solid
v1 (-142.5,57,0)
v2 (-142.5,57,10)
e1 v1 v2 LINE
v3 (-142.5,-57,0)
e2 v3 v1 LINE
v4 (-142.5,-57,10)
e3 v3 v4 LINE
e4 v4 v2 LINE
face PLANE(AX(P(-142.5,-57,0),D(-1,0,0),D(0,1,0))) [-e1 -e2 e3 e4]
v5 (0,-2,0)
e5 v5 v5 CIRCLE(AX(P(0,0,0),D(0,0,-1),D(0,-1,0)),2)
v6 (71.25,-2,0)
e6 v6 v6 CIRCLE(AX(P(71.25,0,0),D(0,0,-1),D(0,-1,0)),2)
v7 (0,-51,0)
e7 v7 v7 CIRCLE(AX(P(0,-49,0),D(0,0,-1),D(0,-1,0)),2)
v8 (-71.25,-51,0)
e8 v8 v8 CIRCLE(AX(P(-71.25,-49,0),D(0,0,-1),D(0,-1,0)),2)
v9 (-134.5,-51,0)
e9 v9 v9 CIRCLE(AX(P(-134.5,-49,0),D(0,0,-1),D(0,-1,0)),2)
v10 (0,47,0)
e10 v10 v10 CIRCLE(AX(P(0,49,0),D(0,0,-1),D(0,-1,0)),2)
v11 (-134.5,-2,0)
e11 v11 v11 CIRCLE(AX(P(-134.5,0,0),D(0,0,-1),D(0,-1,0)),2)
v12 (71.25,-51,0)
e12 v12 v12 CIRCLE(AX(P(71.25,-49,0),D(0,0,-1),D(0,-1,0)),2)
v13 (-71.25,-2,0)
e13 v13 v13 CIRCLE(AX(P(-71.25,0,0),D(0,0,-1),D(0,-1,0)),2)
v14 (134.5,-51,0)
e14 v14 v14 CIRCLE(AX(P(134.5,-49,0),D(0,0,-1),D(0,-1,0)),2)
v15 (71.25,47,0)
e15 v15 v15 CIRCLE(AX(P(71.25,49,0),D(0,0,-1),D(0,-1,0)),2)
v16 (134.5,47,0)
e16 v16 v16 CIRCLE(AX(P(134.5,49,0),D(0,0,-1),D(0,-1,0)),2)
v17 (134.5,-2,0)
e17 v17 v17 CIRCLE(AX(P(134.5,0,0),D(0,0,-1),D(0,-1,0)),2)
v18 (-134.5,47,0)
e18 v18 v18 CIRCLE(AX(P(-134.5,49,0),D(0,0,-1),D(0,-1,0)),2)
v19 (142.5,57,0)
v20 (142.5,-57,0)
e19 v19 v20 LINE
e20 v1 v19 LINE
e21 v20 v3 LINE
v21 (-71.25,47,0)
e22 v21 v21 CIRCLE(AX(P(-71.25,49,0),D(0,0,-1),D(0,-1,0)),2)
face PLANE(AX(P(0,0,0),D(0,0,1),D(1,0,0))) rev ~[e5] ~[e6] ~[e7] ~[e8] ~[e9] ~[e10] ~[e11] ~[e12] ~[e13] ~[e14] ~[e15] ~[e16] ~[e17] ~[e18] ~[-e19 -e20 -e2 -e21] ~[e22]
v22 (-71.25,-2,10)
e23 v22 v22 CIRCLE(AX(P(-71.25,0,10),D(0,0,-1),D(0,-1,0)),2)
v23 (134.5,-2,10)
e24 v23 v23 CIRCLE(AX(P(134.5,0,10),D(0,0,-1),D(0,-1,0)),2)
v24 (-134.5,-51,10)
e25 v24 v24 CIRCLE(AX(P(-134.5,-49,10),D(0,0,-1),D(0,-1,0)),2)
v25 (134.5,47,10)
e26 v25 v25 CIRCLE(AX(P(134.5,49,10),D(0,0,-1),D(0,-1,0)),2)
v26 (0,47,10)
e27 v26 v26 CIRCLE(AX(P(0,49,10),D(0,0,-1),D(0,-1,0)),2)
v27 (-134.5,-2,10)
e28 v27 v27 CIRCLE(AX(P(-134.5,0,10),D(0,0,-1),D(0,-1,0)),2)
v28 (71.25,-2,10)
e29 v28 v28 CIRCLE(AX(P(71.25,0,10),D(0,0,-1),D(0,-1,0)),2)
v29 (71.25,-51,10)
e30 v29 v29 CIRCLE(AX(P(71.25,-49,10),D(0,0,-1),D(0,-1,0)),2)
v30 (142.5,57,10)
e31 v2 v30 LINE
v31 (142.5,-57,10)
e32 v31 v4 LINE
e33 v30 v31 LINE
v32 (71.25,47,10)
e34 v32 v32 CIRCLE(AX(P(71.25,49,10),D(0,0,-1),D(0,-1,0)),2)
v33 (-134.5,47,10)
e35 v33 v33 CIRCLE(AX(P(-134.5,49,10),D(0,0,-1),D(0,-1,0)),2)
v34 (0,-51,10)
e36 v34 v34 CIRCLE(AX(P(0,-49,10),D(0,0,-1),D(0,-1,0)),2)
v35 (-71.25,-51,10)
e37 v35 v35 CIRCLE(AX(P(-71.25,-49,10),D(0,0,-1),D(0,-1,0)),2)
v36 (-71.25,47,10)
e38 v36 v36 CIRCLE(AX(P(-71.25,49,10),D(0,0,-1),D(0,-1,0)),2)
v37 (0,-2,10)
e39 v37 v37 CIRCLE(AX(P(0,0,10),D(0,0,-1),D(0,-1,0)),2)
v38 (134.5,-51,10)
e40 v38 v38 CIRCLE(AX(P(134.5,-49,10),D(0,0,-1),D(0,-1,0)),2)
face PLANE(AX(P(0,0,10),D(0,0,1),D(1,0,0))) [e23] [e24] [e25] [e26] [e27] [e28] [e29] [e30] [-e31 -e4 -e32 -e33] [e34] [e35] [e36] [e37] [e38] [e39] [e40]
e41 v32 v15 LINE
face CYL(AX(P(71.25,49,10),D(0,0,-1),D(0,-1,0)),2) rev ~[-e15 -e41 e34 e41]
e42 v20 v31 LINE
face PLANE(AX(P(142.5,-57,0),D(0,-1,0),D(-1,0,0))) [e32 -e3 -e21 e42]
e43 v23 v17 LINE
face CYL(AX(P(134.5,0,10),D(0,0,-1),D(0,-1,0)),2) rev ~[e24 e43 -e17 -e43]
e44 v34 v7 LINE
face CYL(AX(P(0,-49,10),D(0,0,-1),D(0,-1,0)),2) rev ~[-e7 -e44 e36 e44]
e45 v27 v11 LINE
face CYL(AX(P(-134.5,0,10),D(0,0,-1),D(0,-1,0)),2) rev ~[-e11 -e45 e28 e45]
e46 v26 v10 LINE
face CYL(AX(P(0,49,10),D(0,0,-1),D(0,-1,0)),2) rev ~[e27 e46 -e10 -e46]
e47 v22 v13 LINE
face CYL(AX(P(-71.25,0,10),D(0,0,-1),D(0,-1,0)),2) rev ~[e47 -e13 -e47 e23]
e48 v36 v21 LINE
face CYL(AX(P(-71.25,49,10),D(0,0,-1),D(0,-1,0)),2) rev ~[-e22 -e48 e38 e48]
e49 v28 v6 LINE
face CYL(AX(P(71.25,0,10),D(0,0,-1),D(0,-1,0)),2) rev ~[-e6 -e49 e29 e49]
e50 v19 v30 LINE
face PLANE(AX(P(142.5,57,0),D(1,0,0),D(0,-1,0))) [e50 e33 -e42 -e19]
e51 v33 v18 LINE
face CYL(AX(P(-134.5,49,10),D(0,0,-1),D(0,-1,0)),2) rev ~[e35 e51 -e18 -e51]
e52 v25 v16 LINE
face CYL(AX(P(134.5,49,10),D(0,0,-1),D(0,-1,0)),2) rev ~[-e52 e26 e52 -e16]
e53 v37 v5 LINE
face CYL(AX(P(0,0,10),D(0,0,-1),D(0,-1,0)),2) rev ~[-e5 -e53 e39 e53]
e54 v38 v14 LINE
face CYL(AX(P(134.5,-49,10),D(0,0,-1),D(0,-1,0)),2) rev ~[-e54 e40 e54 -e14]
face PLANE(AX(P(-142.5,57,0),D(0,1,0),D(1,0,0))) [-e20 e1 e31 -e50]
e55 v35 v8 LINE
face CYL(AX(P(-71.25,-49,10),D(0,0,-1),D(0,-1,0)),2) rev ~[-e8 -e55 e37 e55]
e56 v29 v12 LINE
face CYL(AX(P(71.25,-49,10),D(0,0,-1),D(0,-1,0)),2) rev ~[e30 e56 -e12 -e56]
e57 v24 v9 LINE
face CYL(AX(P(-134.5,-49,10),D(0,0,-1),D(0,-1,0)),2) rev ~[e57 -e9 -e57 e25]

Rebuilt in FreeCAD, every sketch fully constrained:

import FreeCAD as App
import Part
import Sketcher
from FreeCAD import Vector


def add_polygon(sketch, points):
    """Adds a closed chain of lines whose ends are joined by coincident constraints."""
    first, n = sketch.GeometryCount, len(points)
    for a, b in zip(points, points[1:] + points[:1]):
        sketch.addGeometry(Part.LineSegment(App.Vector(*a, 0), App.Vector(*b, 0)), False)
    for i in range(n):
        sketch.addConstraint(Sketcher.Constraint("Coincident", first + i, 2, first + (i + 1) % n, 1))

doc = App.newDocument("Part")
params = doc.addObject("Spreadsheet::Sheet", "Params")
for row, (alias, value) in enumerate([
    ("sketch1_width", "285 mm"),
    ("sketch1_height", "114 mm"),
    ("pad1_length", "10 mm"),
    ("sketch2_diameter", "4 mm"),
    ("hole_diameter", "4 mm"),
], start=1):
    params.set(f"A{row}", alias)
    params.set(f"B{row}", "=" + value)
    params.setAlias(f"B{row}", alias)

body = doc.addObject("PartDesign::Body", "Body")

sketch1 = body.newObject("Sketcher::SketchObject", "Sketch")
sketch1.AttachmentSupport = (doc.getObject("XY_Plane"), [""])
sketch1.MapMode = "FlatFace"
add_polygon(sketch1, [(142, 57), (-142, 57), (-142, -57), (142, -57)])
sketch1.addConstraint([
    Sketcher.Constraint("Horizontal", 0),
    Sketcher.Constraint("Vertical", 1),
    Sketcher.Constraint("Horizontal", 2),
    Sketcher.Constraint("Vertical", 3),
    Sketcher.Constraint("Symmetric", 0, 2, 2, 2, -1, 1),
    Sketcher.Constraint("DistanceX", 0, 2, 0, 1, 285.0),
    Sketcher.Constraint("DistanceY", 1, 2, 1, 1, 114.0),
])
sketch1.setExpression("Constraints[9]", "Params.sketch1_width")
sketch1.setExpression("Constraints[10]", "Params.sketch1_height")
pad1 = body.newObject("PartDesign::Pad", "Pad")
pad1.Profile = sketch1
pad1.setExpression("Length", "Params.pad1_length")

sketch2 = body.newObject("Sketcher::SketchObject", "Sketch001")
sketch2.AttachmentSupport = (doc.getObject("XY_Plane"), [""])
sketch2.MapMode = "FlatFace"
sketch2.AttachmentOffset = App.Placement(Vector(0, 0, 10), App.Rotation())
sketch2.addGeometry([
    Part.Circle(Vector(-134.5, 49, 0), Vector(0, 0, 1), 2),
    Part.Circle(Vector(-134.5, -49, 0), Vector(0, 0, 1), 2),
    Part.Circle(Vector(134.5, -49, 0), Vector(0, 0, 1), 2),
    Part.Circle(Vector(134.5, 49, 0), Vector(0, 0, 1), 2),
    Part.Circle(Vector(71.2, 49, 0), Vector(0, 0, 1), 2),
    Part.Circle(Vector(-71.2, 49, 0), Vector(0, 0, 1), 2),
    Part.Circle(Vector(-71.2, -49, 0), Vector(0, 0, 1), 2),
    Part.Circle(Vector(71.2, -49, 0), Vector(0, 0, 1), 2),
    Part.Circle(Vector(-71.2, 0, 0), Vector(0, 0, 1), 2),
    Part.Circle(Vector(0, 0, 0), Vector(0, 0, 1), 2),
    Part.Circle(Vector(71.2, 0, 0), Vector(0, 0, 1), 2),
    Part.Circle(Vector(0, 49, 0), Vector(0, 0, 1), 2),
    Part.Circle(Vector(0, -49, 0), Vector(0, 0, 1), 2),
    Part.Circle(Vector(-134.5, 0, 0), Vector(0, 0, 1), 2),
    Part.Circle(Vector(134.5, 0, 0), Vector(0, 0, 1), 2),
], False)
sketch2.addConstraint([
    Sketcher.Constraint("Coincident", 9, 3, -1, 1),
    Sketcher.Constraint("Equal", 0, 1),
    Sketcher.Constraint("Equal", 1, 2),
    Sketcher.Constraint("Equal", 2, 3),
    Sketcher.Constraint("Equal", 3, 4),
    Sketcher.Constraint("Equal", 4, 5),
    Sketcher.Constraint("Equal", 5, 6),
    Sketcher.Constraint("Equal", 6, 7),
    Sketcher.Constraint("Equal", 7, 8),
    Sketcher.Constraint("Equal", 8, 9),
    Sketcher.Constraint("Equal", 9, 10),
    Sketcher.Constraint("Equal", 10, 11),
    Sketcher.Constraint("Equal", 11, 12),
    Sketcher.Constraint("Equal", 12, 13),
    Sketcher.Constraint("Equal", 13, 14),
    Sketcher.Constraint("Symmetric", 0, 3, 2, 3, -1, 1),
    Sketcher.Constraint("Symmetric", 1, 3, 3, 3, -1, 1),
    Sketcher.Constraint("Symmetric", 4, 3, 6, 3, -1, 1),
    Sketcher.Constraint("Symmetric", 5, 3, 7, 3, -1, 1),
    Sketcher.Constraint("Symmetric", 8, 3, 10, 3, -1, 1),
    Sketcher.Constraint("Symmetric", 11, 3, 12, 3, -1, 1),
    Sketcher.Constraint("Symmetric", 13, 3, 14, 3, -1, 1),
    Sketcher.Constraint("Symmetric", 1, 3, 2, 3, -2),
    Sketcher.Constraint("Symmetric", 4, 3, 5, 3, -2),
    Sketcher.Constraint("PointOnObject", 8, 3, -1),
    Sketcher.Constraint("PointOnObject", 11, 3, -2),
    Sketcher.Constraint("PointOnObject", 13, 3, -1),
    Sketcher.Constraint("Horizontal", 3, 3, 4, 3),
    Sketcher.Constraint("Horizontal", 5, 3, 11, 3),
    Sketcher.Constraint("Vertical", 6, 3, 8, 3),
    Sketcher.Constraint("Vertical", 1, 3, 13, 3),
    Sketcher.Constraint("Diameter", 0, 4.0),
    Sketcher.Constraint("DistanceY", -1, 1, 0, 3, 49.0),
    Sketcher.Constraint("DistanceX", 1, 3, 2, 3, 269.0),
    Sketcher.Constraint("DistanceX", 5, 3, 4, 3, 142.5),
])
sketch2.setExpression("Constraints[31]", "Params.sketch2_diameter")
doc.recompute()
hole = body.newObject("PartDesign::Hole", "Hole")
hole.Profile = sketch2
hole.ThreadType = "None"
hole.setExpression("Diameter", "Params.hole_diameter")
hole.DepthType = "ThroughAll"

doc.recompute()
